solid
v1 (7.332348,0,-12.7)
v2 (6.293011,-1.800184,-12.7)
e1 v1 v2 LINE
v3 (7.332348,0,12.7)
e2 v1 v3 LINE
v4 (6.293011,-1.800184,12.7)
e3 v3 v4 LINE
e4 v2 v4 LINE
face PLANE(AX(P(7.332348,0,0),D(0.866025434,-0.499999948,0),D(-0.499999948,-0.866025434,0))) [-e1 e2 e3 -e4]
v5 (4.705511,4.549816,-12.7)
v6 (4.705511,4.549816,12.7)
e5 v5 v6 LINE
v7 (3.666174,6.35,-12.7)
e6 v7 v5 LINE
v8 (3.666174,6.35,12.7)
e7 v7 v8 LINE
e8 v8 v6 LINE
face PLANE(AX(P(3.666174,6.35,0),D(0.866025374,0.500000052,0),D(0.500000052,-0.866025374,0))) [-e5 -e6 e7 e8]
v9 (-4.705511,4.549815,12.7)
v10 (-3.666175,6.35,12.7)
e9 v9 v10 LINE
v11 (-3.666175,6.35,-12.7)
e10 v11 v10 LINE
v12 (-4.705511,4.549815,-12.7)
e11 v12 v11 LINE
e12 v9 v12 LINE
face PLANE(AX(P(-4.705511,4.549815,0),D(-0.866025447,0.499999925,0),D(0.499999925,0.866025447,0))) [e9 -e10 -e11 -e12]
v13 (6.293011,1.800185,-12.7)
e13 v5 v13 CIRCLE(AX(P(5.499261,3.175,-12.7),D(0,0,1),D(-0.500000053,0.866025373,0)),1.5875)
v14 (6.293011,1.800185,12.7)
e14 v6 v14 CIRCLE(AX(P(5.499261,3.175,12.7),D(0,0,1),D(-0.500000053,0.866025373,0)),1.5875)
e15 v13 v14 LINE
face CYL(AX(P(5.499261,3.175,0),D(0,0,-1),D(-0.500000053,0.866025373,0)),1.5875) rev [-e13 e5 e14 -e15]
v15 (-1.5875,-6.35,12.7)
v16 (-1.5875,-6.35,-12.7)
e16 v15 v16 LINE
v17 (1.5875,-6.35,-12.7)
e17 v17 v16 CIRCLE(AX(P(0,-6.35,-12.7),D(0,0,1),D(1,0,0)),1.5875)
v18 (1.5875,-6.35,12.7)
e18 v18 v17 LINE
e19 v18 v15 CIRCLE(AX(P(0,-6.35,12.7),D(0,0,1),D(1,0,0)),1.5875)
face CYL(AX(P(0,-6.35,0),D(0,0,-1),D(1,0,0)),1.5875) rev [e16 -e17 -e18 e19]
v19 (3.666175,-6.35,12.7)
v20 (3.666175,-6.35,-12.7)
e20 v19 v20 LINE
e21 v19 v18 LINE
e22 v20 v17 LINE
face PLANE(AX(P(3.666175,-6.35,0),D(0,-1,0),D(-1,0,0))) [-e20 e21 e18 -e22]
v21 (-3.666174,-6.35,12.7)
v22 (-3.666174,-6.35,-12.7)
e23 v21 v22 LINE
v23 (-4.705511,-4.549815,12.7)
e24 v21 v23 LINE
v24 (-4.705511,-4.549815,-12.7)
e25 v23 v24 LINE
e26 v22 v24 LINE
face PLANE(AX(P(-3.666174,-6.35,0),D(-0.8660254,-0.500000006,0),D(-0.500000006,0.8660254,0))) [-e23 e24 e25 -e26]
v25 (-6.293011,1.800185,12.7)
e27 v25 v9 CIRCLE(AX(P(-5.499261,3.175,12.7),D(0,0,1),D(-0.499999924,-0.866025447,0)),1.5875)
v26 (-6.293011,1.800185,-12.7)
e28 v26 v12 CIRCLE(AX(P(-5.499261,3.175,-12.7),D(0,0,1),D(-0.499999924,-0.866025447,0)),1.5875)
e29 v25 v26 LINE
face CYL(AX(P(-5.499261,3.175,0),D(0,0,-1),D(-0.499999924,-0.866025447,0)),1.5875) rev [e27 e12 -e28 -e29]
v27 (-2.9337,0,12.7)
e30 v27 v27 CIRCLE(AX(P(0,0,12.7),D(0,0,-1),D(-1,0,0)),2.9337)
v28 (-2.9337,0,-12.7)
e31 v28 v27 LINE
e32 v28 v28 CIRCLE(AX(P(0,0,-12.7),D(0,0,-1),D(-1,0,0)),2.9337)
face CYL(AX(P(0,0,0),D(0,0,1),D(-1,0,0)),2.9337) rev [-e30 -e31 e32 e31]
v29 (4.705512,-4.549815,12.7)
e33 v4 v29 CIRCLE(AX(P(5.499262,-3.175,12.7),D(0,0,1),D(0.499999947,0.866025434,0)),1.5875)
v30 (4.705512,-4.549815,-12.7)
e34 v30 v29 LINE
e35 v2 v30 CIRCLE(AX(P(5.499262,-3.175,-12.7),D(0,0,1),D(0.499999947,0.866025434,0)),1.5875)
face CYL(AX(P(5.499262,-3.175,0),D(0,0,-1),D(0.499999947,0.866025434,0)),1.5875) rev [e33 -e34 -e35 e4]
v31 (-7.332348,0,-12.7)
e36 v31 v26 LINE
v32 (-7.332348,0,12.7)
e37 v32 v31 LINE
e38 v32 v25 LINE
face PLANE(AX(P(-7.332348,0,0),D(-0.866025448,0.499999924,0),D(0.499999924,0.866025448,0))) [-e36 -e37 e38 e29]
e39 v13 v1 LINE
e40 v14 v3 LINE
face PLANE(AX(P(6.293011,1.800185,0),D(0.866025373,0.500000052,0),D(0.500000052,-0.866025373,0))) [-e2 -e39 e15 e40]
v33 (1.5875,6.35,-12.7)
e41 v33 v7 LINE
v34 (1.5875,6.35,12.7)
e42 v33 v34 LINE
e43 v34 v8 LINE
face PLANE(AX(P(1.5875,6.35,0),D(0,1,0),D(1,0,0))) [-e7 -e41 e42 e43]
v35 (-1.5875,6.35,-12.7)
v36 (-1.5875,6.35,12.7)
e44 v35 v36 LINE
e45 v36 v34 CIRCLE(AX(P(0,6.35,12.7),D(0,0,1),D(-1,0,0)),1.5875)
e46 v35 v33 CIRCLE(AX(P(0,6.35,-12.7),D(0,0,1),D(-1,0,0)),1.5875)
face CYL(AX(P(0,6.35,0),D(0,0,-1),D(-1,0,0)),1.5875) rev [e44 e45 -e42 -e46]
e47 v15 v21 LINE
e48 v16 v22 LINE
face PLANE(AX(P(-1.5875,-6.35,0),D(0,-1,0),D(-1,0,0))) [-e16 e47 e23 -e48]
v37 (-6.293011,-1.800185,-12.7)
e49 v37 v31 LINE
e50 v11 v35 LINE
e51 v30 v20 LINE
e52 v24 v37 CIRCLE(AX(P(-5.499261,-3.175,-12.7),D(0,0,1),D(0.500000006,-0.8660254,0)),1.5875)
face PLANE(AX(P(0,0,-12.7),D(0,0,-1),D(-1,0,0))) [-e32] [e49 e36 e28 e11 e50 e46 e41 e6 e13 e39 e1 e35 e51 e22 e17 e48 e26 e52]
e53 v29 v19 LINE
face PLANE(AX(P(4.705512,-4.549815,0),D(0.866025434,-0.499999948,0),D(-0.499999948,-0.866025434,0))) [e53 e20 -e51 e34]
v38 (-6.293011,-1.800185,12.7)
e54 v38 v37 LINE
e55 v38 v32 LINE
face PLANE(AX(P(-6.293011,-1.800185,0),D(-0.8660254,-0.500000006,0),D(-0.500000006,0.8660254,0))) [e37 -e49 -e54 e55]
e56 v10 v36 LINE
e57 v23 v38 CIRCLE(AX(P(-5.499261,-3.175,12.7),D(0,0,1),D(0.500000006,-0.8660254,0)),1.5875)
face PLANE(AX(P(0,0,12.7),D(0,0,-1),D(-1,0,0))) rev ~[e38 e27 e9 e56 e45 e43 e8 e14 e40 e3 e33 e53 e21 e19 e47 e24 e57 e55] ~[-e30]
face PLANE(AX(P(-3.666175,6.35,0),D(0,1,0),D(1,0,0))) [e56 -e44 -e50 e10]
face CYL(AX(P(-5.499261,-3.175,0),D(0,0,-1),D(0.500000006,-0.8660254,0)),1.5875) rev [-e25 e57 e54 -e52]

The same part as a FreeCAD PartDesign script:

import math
import FreeCAD as App
import Part
import Sketcher

V = App.Vector
Q = App.Units.Quantity

doc = App.newDocument("Part")
body = doc.addObject("PartDesign::Body", "Body")

# Sketch on XY plane
sketch1 = body.newObject("Sketcher::SketchObject", "Sketch")
sketch1.AttachmentSupport = (doc.getObject("XY_Plane"), [""])
sketch1.MapMode = "FlatFace"
sketch1.addGeometry([
    Part.LineSegment(V(4.7, -4.5, 0), V(3.7, -6.3, 0)),  # 0
    Part.LineSegment(V(3.7, -6.3, 0), V(1.6, -6.3, 0)),  # 1
    Part.ArcOfCircle(Part.Circle(V(0, -6.3, 0), V(0, 0, 1), 1.6), math.radians(0), math.radians(180)),  # 2
    Part.LineSegment(V(-1.6, -6.3, 0), V(-3.7, -6.3, 0)),  # 3
    Part.LineSegment(V(-3.7, -6.3, 0), V(-4.7, -4.5, 0)),  # 4
    Part.ArcOfCircle(Part.Circle(V(-5.5, -3.2, 0), V(0, 0, 1), 1.6), math.radians(-60), math.radians(120)),  # 5
    Part.LineSegment(V(-6.3, -1.8, 0), V(-7.3, 0, 0)),  # 6
    Part.LineSegment(V(-7.3, 0, 0), V(-6.3, 1.8, 0)),  # 7
    Part.ArcOfCircle(Part.Circle(V(-5.5, 3.2, 0), V(0, 0, 1), 1.6), math.radians(-120), math.radians(60)),  # 8
    Part.LineSegment(V(-4.7, 4.5, 0), V(-3.7, 6.4, 0)),  # 9
    Part.LineSegment(V(-3.7, 6.4, 0), V(-1.6, 6.4, 0)),  # 10
    Part.ArcOfCircle(Part.Circle(V(0, 6.4, 0), V(0, 0, 1), 1.6), math.radians(180), math.radians(360)),  # 11
    Part.LineSegment(V(1.6, 6.4, 0), V(3.7, 6.4, 0)),  # 12
    Part.LineSegment(V(3.7, 6.4, 0), V(4.7, 4.5, 0)),  # 13
    Part.ArcOfCircle(Part.Circle(V(5.5, 3.2, 0), V(0, 0, 1), 1.6), math.radians(120), math.radians(300)),  # 14
    Part.LineSegment(V(6.3, 1.8, 0), V(7.3, 0, 0)),  # 15
    Part.LineSegment(V(7.3, 0, 0), V(6.3, -1.8, 0)),  # 16
    Part.ArcOfCircle(Part.Circle(V(5.5, -3.2, 0), V(0, 0, 1), 1.6), math.radians(60), math.radians(240)),  # 17
    Part.Circle(V(0, 0, 0), V(0, 0, 1), 2.9),  # 18
], False)
sketch1.addConstraint([
    Sketcher.Constraint("Coincident", 0, 2, 1, 1),
    Sketcher.Constraint("Coincident", 1, 2, 2, 1),
    Sketcher.Constraint("Coincident", 2, 2, 3, 1),
    Sketcher.Constraint("Coincident", 3, 2, 4, 1),
    Sketcher.Constraint("Coincident", 4, 2, 5, 1),
    Sketcher.Constraint("Coincident", 5, 2, 6, 1),
    Sketcher.Constraint("Coincident", 6, 2, 7, 1),
    Sketcher.Constraint("Coincident", 7, 2, 8, 1),
    Sketcher.Constraint("Coincident", 8, 2, 9, 1),
    Sketcher.Constraint("Coincident", 9, 2, 10, 1),
    Sketcher.Constraint("Coincident", 10, 2, 11, 1),
    Sketcher.Constraint("Coincident", 11, 2, 12, 1),
    Sketcher.Constraint("Coincident", 12, 2, 13, 1),
    Sketcher.Constraint("Coincident", 13, 2, 14, 1),
    Sketcher.Constraint("Coincident", 14, 2, 15, 1),
    Sketcher.Constraint("Coincident", 15, 2, 16, 1),
    Sketcher.Constraint("Coincident", 16, 2, 17, 1),
    Sketcher.Constraint("Coincident", 17, 2, 0, 1),
    Sketcher.Constraint("Horizontal", 1),
    Sketcher.Constraint("Horizontal", 3),
    Sketcher.Constraint("Horizontal", 10),
    Sketcher.Constraint("Horizontal", 12),
    Sketcher.Constraint("Coincident", 18, 3, -1, 1),
    Sketcher.Constraint("Equal", 2, 5),
    Sketcher.Constraint("Equal", 5, 8),
    Sketcher.Constraint("Equal", 8, 11),
    Sketcher.Constraint("Equal", 11, 14),
    Sketcher.Constraint("Equal", 14, 17),
    Sketcher.Constraint("Symmetric", 2, 3, 11, 3, -1, 1),
    Sketcher.Constraint("Symmetric", 5, 3, 14, 3, -1, 1),
    Sketcher.Constraint("Symmetric", 8, 3, 17, 3, -1, 1),
    Sketcher.Constraint("Symmetric", 0, 2, 9, 2, -1, 1),
    Sketcher.Constraint("Symmetric", 3, 2, 12, 2, -1, 1),
    Sketcher.Constraint("Symmetric", 6, 2, 15, 2, -1, 1),
    Sketcher.Constraint("Symmetric", 8, 3, 14, 3, -2),
    Sketcher.Constraint("Symmetric", 1, 2, 2, 2, -2),
    Sketcher.Constraint("PointOnObject", 6, 2, -1),
    Sketcher.Constraint("Parallel", 4, 6),
    Sketcher.Constraint("Parallel", 0, 7),
    Sketcher.Constraint("Parallel", 7, 9),
    Sketcher.Constraint("Parallel", 6, 13),
    Sketcher.Constraint("Parallel", 13, 15),
    Sketcher.Constraint("Parallel", 9, 16),
    Sketcher.Constraint("Horizontal", 2, 3, 0, 2),
    Sketcher.Constraint("Horizontal", 8, 2, 13, 2),
    Sketcher.Constraint("Horizontal", 7, 2, 14, 2),
    Sketcher.Constraint("Equal", 4, 6),
    Sketcher.Constraint("Diameter", 18, Q("0.231 in")),
    Sketcher.Constraint("Angle", 0, Q("-119.999997 deg")),
    Sketcher.Constraint("Radius", 2, Q("0.0625 in")),
    Sketcher.Constraint("DistanceY", 2, 3, 11, 3, Q("0.5 in")),
    Sketcher.Constraint("DistanceY", 5, 3, 8, 3, Q("0.25 in")),
    Sketcher.Constraint("DistanceX", 5, 3, 4, 2, Q("0.03125 in")),
    Sketcher.Constraint("DistanceX", 1, 2, 1, 1, Q("2.078674 mm")),
])
pad1 = body.newObject("PartDesign::Pad", "Pad")
pad1.Profile = sketch1
pad1.Length = Q("1 in")
pad1.Midplane = True

doc.recompute()
